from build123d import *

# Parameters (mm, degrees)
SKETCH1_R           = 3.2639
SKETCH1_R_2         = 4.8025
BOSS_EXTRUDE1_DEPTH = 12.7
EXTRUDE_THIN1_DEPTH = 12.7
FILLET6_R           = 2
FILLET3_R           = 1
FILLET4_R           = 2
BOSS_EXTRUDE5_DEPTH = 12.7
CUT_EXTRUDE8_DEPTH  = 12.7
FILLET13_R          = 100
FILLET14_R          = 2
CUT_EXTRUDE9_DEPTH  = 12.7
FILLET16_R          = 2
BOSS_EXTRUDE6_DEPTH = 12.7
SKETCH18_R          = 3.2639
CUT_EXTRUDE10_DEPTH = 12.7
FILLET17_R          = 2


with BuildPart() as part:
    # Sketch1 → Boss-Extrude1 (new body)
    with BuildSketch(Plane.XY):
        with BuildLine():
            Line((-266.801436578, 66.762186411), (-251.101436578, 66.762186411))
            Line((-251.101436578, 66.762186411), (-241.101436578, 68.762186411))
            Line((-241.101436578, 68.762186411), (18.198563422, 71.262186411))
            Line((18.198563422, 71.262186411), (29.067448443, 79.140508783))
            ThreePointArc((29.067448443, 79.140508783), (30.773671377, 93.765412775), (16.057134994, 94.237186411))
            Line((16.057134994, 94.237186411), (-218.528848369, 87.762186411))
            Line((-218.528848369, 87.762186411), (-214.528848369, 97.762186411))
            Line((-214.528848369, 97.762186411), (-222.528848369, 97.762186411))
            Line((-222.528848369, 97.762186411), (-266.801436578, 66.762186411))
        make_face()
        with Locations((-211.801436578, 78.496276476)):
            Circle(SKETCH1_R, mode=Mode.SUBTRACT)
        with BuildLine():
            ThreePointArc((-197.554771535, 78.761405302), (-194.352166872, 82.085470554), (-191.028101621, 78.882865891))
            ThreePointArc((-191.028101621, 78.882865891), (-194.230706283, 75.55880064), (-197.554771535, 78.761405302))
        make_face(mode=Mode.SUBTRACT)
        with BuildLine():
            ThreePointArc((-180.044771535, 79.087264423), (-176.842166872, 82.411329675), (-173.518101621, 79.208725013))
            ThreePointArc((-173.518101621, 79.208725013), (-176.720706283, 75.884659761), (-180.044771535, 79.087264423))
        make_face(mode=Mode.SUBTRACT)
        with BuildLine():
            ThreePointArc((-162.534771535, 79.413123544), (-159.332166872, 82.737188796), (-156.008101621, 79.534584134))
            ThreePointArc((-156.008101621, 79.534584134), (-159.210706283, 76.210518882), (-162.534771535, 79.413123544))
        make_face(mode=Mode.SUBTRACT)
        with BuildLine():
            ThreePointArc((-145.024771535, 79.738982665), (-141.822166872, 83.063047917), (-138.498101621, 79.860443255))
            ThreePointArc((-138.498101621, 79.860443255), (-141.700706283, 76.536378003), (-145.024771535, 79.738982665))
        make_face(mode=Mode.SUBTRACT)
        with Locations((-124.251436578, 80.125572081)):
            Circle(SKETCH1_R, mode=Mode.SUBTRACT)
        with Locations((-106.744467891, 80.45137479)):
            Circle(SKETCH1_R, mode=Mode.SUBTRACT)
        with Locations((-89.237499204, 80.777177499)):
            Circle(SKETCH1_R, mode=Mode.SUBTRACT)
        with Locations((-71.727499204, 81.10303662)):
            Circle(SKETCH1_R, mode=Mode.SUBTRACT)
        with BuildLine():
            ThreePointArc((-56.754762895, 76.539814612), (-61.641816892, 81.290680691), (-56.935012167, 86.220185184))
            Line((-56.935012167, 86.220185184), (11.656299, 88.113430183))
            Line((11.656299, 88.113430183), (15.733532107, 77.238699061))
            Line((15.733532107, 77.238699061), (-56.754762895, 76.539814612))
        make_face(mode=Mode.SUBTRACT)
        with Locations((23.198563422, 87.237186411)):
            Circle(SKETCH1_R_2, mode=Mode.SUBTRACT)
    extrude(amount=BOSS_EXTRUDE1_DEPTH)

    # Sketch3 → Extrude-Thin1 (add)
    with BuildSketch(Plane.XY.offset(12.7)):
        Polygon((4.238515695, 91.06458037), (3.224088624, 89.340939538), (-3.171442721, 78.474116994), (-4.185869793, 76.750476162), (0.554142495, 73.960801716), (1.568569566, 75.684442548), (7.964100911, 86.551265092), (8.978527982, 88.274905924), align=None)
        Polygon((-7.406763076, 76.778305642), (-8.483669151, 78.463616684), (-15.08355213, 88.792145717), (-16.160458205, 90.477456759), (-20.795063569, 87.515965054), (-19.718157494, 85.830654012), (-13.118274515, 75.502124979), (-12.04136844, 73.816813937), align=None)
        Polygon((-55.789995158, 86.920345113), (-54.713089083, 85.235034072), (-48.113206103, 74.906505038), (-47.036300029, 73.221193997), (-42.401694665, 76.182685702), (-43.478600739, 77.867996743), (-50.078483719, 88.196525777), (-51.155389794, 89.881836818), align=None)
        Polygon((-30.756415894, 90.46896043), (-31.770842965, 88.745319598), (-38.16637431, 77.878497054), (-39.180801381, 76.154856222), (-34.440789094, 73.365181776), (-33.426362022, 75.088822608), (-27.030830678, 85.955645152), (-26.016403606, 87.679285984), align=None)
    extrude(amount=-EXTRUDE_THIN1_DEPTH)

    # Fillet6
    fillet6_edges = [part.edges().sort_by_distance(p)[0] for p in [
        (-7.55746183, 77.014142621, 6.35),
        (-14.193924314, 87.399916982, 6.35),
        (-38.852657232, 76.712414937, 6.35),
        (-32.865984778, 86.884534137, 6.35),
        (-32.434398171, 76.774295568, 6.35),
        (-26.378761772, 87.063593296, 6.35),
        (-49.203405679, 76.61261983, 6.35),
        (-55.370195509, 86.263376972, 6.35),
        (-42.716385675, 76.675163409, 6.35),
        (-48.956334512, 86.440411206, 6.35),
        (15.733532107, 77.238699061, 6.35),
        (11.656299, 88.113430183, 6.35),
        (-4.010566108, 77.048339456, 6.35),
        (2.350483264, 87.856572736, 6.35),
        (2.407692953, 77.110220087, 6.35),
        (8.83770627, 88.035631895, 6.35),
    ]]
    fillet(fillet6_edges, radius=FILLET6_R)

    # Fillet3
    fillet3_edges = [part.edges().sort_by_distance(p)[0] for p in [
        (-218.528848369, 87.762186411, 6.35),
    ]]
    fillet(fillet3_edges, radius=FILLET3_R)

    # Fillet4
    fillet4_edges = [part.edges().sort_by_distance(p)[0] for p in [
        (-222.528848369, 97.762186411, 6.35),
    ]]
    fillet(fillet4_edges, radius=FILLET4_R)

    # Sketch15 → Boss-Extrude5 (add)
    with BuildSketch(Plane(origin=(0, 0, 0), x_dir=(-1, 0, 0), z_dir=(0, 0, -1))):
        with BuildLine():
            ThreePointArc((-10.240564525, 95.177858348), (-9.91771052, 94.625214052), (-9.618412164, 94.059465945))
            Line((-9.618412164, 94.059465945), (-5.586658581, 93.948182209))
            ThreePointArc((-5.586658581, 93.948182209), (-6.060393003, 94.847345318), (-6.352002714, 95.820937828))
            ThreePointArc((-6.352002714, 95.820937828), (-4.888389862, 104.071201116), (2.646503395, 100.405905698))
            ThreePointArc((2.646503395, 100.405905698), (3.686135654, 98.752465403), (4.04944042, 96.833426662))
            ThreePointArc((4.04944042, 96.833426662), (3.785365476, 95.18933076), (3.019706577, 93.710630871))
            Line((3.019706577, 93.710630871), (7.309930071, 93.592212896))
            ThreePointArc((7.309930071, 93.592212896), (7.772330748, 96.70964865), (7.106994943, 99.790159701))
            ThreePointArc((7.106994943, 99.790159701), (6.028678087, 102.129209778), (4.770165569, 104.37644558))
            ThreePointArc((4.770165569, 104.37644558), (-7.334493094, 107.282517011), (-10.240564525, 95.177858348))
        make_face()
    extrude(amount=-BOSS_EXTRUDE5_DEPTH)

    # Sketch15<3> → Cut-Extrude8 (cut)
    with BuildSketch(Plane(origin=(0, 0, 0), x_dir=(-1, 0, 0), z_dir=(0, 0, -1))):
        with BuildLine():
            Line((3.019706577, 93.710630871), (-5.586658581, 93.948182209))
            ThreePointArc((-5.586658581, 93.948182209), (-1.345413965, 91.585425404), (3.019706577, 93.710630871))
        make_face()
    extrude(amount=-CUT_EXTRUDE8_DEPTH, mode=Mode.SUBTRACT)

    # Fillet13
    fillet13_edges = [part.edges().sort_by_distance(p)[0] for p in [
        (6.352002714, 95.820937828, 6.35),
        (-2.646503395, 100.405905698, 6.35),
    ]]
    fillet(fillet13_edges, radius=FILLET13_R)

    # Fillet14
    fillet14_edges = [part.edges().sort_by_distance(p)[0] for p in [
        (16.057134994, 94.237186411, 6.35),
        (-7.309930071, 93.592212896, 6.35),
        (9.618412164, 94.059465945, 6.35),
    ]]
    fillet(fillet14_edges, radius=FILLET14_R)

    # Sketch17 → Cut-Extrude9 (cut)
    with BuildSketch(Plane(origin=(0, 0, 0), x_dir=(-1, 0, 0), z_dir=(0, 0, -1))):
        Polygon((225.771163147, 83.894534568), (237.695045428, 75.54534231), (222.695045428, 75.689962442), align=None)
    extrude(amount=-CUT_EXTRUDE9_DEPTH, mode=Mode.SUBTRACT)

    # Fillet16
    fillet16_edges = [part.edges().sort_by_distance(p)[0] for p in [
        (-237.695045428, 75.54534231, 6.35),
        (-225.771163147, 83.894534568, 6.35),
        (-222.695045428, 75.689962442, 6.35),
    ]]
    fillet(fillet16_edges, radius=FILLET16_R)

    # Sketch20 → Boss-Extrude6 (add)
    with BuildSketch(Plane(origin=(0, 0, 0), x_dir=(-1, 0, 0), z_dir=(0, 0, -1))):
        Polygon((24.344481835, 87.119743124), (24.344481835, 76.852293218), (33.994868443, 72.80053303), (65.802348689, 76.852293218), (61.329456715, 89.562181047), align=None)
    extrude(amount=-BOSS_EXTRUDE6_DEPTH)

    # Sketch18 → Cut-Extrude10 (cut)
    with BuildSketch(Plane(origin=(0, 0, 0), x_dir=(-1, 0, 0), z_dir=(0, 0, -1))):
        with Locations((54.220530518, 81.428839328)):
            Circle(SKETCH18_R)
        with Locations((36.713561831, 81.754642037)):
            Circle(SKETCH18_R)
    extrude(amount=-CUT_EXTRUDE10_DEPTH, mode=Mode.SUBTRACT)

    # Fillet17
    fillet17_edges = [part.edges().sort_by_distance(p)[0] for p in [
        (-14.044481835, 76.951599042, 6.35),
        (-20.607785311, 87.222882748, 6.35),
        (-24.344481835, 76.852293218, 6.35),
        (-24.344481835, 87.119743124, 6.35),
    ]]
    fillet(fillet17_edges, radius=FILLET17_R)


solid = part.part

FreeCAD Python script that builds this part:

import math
import FreeCAD as App
import Part
import Sketcher
from FreeCAD import Vector
Q = App.Units.Quantity


def edges_at(feature, points):
    """Names of the edges that pass closest to the given points."""
    edges = feature.Shape.Edges
    near = lambda p: min(range(len(edges)), key=lambda i: edges[i].distToShape(Part.Vertex(*p))[0])
    return sorted({f"Edge{near(p) + 1}" for p in points})

doc = App.newDocument("Part")
body = doc.addObject("PartDesign::Body", "Body")

# Sketch on XY plane
sketch1 = body.newObject("Sketcher::SketchObject", "Sketch")
sketch1.AttachmentSupport = (doc.getObject("XY_Plane"), [""])
sketch1.MapMode = "FlatFace"
sketch1.addGeometry(Part.LineSegment(Vector(-266.8, 66.8, 0), Vector(-251.1, 66.8, 0)), False)
sketch1.addGeometry(Part.LineSegment(Vector(-251.1, 66.8, 0), Vector(-241.1, 68.8, 0)), False)
sketch1.addGeometry(Part.LineSegment(Vector(-241.1, 68.8, 0), Vector(18.2, 71.3, 0)), False)
sketch1.addGeometry(Part.LineSegment(Vector(18.2, 71.3, 0), Vector(29.1, 79.1, 0)), False)
sketch1.addGeometry(Part.ArcOfCircle(Part.Circle(Vector(23.2, 87.2, 0), Vector(0, 0, 1), 10), math.radians(-54), math.radians(136)), False)
sketch1.addGeometry(Part.LineSegment(Vector(16.1, 94.2, 0), Vector(-218.5, 87.8, 0)), False)
sketch1.addGeometry(Part.LineSegment(Vector(-218.5, 87.8, 0), Vector(-214.5, 97.8, 0)), False)
sketch1.addGeometry(Part.LineSegment(Vector(-214.5, 97.8, 0), Vector(-222.5, 97.8, 0)), False)
sketch1.addGeometry(Part.LineSegment(Vector(-222.5, 97.8, 0), Vector(-266.8, 66.8, 0)), False)
sketch1.addGeometry(Part.Circle(Vector(-211.8, 78.5, 0), Vector(0, 0, 1), 3.3), False)
sketch1.addGeometry(Part.Circle(Vector(-194.3, 78.8, 0), Vector(0, 0, 1), 3.3), False)
sketch1.addGeometry(Part.ArcOfCircle(Part.Circle(Vector(-176.8, 79.1, 0), Vector(0, 0, 1), 3.3), math.radians(-179), math.radians(1)), False)
sketch1.addGeometry(Part.ArcOfCircle(Part.Circle(Vector(-176.8, 79.1, 0), Vector(0, 0, 1), 3.3), math.radians(1), math.radians(181)), False)
sketch1.addGeometry(Part.ArcOfCircle(Part.Circle(Vector(-159.3, 79.5, 0), Vector(0, 0, 1), 3.3), math.radians(-179), math.radians(1)), False)
sketch1.addGeometry(Part.ArcOfCircle(Part.Circle(Vector(-159.3, 79.5, 0), Vector(0, 0, 1), 3.3), math.radians(1), math.radians(181)), False)
sketch1.addGeometry(Part.ArcOfCircle(Part.Circle(Vector(-141.8, 79.8, 0), Vector(0, 0, 1), 3.3), math.radians(-179), math.radians(1)), False)
sketch1.addGeometry(Part.ArcOfCircle(Part.Circle(Vector(-141.8, 79.8, 0), Vector(0, 0, 1), 3.3), math.radians(1), math.radians(181)), False)
sketch1.addGeometry(Part.Circle(Vector(-124.3, 80.1, 0), Vector(0, 0, 1), 3.3), False)
sketch1.addGeometry(Part.Circle(Vector(-106.7, 80.5, 0), Vector(0, 0, 1), 3.3), False)
sketch1.addGeometry(Part.Circle(Vector(-89.2, 80.8, 0), Vector(0, 0, 1), 3.3), False)
sketch1.addGeometry(Part.Circle(Vector(-71.7, 81.1, 0), Vector(0, 0, 1), 3.3), False)
sketch1.addGeometry(Part.LineSegment(Vector(15.7, 77.2, 0), Vector(-56.8, 76.5, 0)), False)
sketch1.addGeometry(Part.ArcOfCircle(Part.Circle(Vector(-56.8, 81.4, 0), Vector(0, 0, 1), 4.8), math.radians(92), math.radians(271)), False)
sketch1.addGeometry(Part.LineSegment(Vector(-56.9, 86.2, 0), Vector(11.7, 88.1, 0)), False)
sketch1.addGeometry(Part.LineSegment(Vector(11.7, 88.1, 0), Vector(15.7, 77.2, 0)), False)
sketch1.addGeometry(Part.Circle(Vector(23.2, 87.2, 0), Vector(0, 0, 1), 4.8), False)
sketch1.addConstraint(Sketcher.Constraint("Coincident", 0, 2, 1, 1))
sketch1.addConstraint(Sketcher.Constraint("Coincident", 1, 2, 2, 1))
sketch1.addConstraint(Sketcher.Constraint("Coincident", 2, 2, 3, 1))
sketch1.addConstraint(Sketcher.Constraint("Tangent", 3, 2, 4, 1))
sketch1.addConstraint(Sketcher.Constraint("Coincident", 4, 2, 5, 1))
sketch1.addConstraint(Sketcher.Constraint("Coincident", 5, 2, 6, 1))
sketch1.addConstraint(Sketcher.Constraint("Coincident", 6, 2, 7, 1))
sketch1.addConstraint(Sketcher.Constraint("Coincident", 7, 2, 8, 1))
sketch1.addConstraint(Sketcher.Constraint("Coincident", 8, 2, 0, 1))
sketch1.addConstraint(Sketcher.Constraint("Tangent", 11, 1, 12, 2))
sketch1.addConstraint(Sketcher.Constraint("Coincident", 12, 1, 11, 2))
sketch1.addConstraint(Sketcher.Constraint("Tangent", 13, 1, 14, 2))
sketch1.addConstraint(Sketcher.Constraint("Coincident", 14, 1, 13, 2))
sketch1.addConstraint(Sketcher.Constraint("Tangent", 15, 1, 16, 2))
sketch1.addConstraint(Sketcher.Constraint("Coincident", 16, 1, 15, 2))
sketch1.addConstraint(Sketcher.Constraint("Tangent", 21, 2, 22, 2))
sketch1.addConstraint(Sketcher.Constraint("Tangent", 22, 1, 23, 1))
sketch1.addConstraint(Sketcher.Constraint("Coincident", 23, 2, 24, 1))
sketch1.addConstraint(Sketcher.Constraint("Coincident", 24, 2, 21, 1))
sketch1.addConstraint(Sketcher.Constraint("Horizontal", 0))
sketch1.addConstraint(Sketcher.Constraint("Horizontal", 7))
sketch1.addConstraint(Sketcher.Constraint("Coincident", 25, 3, 4, 3))
sketch1.addConstraint(Sketcher.Constraint("Equal", 9, 10))
sketch1.addConstraint(Sketcher.Constraint("Equal", 10, 11))
sketch1.addConstraint(Sketcher.Constraint("Equal", 12, 13))
sketch1.addConstraint(Sketcher.Constraint("Equal", 14, 15))
sketch1.addConstraint(Sketcher.Constraint("Equal", 16, 17))
sketch1.addConstraint(Sketcher.Constraint("Equal", 17, 18))
sketch1.addConstraint(Sketcher.Constraint("Equal", 18, 19))
sketch1.addConstraint(Sketcher.Constraint("Equal", 19, 20))
sketch1.addConstraint(Sketcher.Constraint("Parallel", 2, 21))
sketch1.addConstraint(Sketcher.Constraint("Parallel", 5, 23))
sketch1.addConstraint(Sketcher.Constraint("Radius", 4, 10.0))
sketch1.addConstraint(Sketcher.Constraint("DistanceX", 7, 2, 7, 1, 8.0))
sketch1.addConstraint(Sketcher.Constraint("Angle", 8, Q("-145 deg")))
sketch1.addConstraint(Sketcher.Constraint("Diameter", 25, 9.605))
sketch1.addConstraint(Sketcher.Constraint("DistanceX", 0, 1, 0, 2, 15.7))
sketch1.addConstraint(Sketcher.Constraint("DistanceX", 9, 3, 4, 3, 235.0))
sketch1.addConstraint(Sketcher.Constraint("DistanceX", 22, 3, 4, 3, 80.0))
sketch1.addConstraint(Sketcher.Constraint("DistanceX", 0, 2, 1, 2, 10.0))
sketch1.addConstraint(Sketcher.Constraint("DistanceY", 0, 2, 1, 2, 2.0))
sketch1.addConstraint(Sketcher.Constraint("DistanceX", 2, 2, 4, 3, 5.0))
sketch1.addConstraint(Sketcher.Constraint("DistanceY", 4, 3, 4, 2, 7.0))
sketch1.addConstraint(Sketcher.Constraint("DistanceY", 1, 2, 5, 2, 19.0))
sketch1.addConstraint(Sketcher.Constraint("DistanceX", 5, 2, 6, 2, 4.0))
sketch1.addConstraint(Sketcher.Constraint("DistanceY", 5, 2, 6, 2, 10.0))
sketch1.addConstraint(Sketcher.Constraint("DistanceX", 8, 2, 9, 3, 55.0))
sketch1.addConstraint(Sketcher.Constraint("Diameter", 9, 6.5278))
sketch1.addConstraint(Sketcher.Constraint("Radius", 22, 4.841219))
sketch1.addConstraint(Sketcher.Constraint("DistanceX", 9, 3, 10, 3, 17.51))
sketch1.addConstraint(Sketcher.Constraint("DistanceX", 10, 3, 11, 3, 17.51))
sketch1.addConstraint(Sketcher.Constraint("DistanceX", 11, 3, 13, 3, 17.51))
sketch1.addConstraint(Sketcher.Constraint("DistanceX", 13, 3, 15, 3, 17.51))
sketch1.addConstraint(Sketcher.Constraint("DistanceX", 15, 3, 17, 3, 17.51))
sketch1.addConstraint(Sketcher.Constraint("DistanceX", 19, 3, 20, 3, 17.51))
sketch1.addConstraint(Sketcher.Constraint("DistanceX", 14, 1, 16, 1, 17.51))
sketch1.addConstraint(Sketcher.Constraint("DistanceY", 2, 2, 4, 3, 15.975))
sketch1.addConstraint(Sketcher.Constraint("DistanceX", 19, 3, -1, 1, 89.237499))
sketch1.addConstraint(Sketcher.Constraint("DistanceX", 12, 1, -1, 1, 173.518102))
sketch1.addConstraint(Sketcher.Constraint("DistanceX", 14, 1, -1, 1, 156.008102))
sketch1.addConstraint(Sketcher.Constraint("DistanceX", -1, 1, 23, 2, 11.656299))
sketch1.addConstraint(Sketcher.Constraint("DistanceY", -1, 1, 24, 2, 77.238699))
sketch1.addConstraint(Sketcher.Constraint("DistanceY", 3, 2, 22, 3, 2.2403))
sketch1.addConstraint(Sketcher.Constraint("DistanceY", 12, 1, 13, 1, 0.204399))
sketch1.addConstraint(Sketcher.Constraint("DistanceY", 14, 1, 15, 1, 0.204399))
sketch1.addConstraint(Sketcher.Constraint("Distance", 24, 11.61394))
sketch1.addConstraint(Sketcher.Constraint("DistanceY", -1, 1, 22, 3, 81.380809))
sketch1.addConstraint(Sketcher.Constraint("DistanceX", -1, 1, 3, 2, 29.067448))
sketch1.addConstraint(Sketcher.Constraint("DistanceX", 11, 1, -1, 1, 180.044772))
sketch1.addConstraint(Sketcher.Constraint("DistanceX", 13, 1, -1, 1, 162.534772))
sketch1.addConstraint(Sketcher.Constraint("DistanceX", 15, 1, -1, 1, 145.024772))
sketch1.addConstraint(Sketcher.Constraint("DistanceY", 9, 3, 4, 3, 8.74091))
sketch1.addConstraint(Sketcher.Constraint("DistanceY", 9, 3, 10, 3, 0.325859))
sketch1.addConstraint(Sketcher.Constraint("DistanceY", 10, 3, 11, 3, 0.325859))
sketch1.addConstraint(Sketcher.Constraint("DistanceY", 15, 3, 17, 3, 0.325859))
sketch1.addConstraint(Sketcher.Constraint("DistanceX", 17, 3, 18, 3, 17.506969))
sketch1.addConstraint(Sketcher.Constraint("DistanceY", 15, 3, 18, 3, 0.651662))
sketch1.addConstraint(Sketcher.Constraint("DistanceY", 19, 3, 20, 3, 0.325859))
sketch1.addConstraint(Sketcher.Constraint("DistanceY", 18, 3, 20, 3, 0.651662))
pad1 = body.newObject("PartDesign::Pad", "Pad")
pad1.Profile = sketch1
pad1.Length = 12.7

# Sketch on XY plane
sketch2 = body.newObject("Sketcher::SketchObject", "Sketch001")
sketch2.AttachmentSupport = (doc.getObject("XY_Plane"), [""])
sketch2.MapMode = "FlatFace"
sketch2.AttachmentOffset = App.Placement(Vector(0, 0, 12.7), App.Rotation())
sketch2.addGeometry(Part.LineSegment(Vector(4.2, 91.1, 0), Vector(3.2, 89.3, 0)), False)
sketch2.addGeometry(Part.LineSegment(Vector(3.2, 89.3, 0), Vector(-3.2, 78.5, 0)), False)
sketch2.addGeometry(Part.LineSegment(Vector(-3.2, 78.5, 0), Vector(-4.2, 76.8, 0)), False)
sketch2.addGeometry(Part.LineSegment(Vector(-4.2, 76.8, 0), Vector(0.6, 74, 0)), False)
sketch2.addGeometry(Part.LineSegment(Vector(0.6, 74, 0), Vector(1.6, 75.7, 0)), False)
sketch2.addGeometry(Part.LineSegment(Vector(1.6, 75.7, 0), Vector(8, 86.6, 0)), False)
sketch2.addGeometry(Part.LineSegment(Vector(8, 86.6, 0), Vector(9, 88.3, 0)), False)
sketch2.addGeometry(Part.LineSegment(Vector(9, 88.3, 0), Vector(4.2, 91.1, 0)), False)
sketch2.addGeometry(Part.LineSegment(Vector(-7.4, 76.8, 0), Vector(-8.5, 78.5, 0)), False)
sketch2.addGeometry(Part.LineSegment(Vector(-8.5, 78.5, 0), Vector(-15.1, 88.8, 0)), False)
sketch2.addGeometry(Part.LineSegment(Vector(-15.1, 88.8, 0), Vector(-16.2, 90.5, 0)), False)
sketch2.addGeometry(Part.LineSegment(Vector(-16.2, 90.5, 0), Vector(-20.8, 87.5, 0)), False)
sketch2.addGeometry(Part.LineSegment(Vector(-20.8, 87.5, 0), Vector(-19.7, 85.8, 0)), False)
sketch2.addGeometry(Part.LineSegment(Vector(-19.7, 85.8, 0), Vector(-13.1, 75.5, 0)), False)
sketch2.addGeometry(Part.LineSegment(Vector(-13.1, 75.5, 0), Vector(-12, 73.8, 0)), False)
sketch2.addGeometry(Part.LineSegment(Vector(-12, 73.8, 0), Vector(-7.4, 76.8, 0)), False)
sketch2.addGeometry(Part.LineSegment(Vector(-55.8, 86.9, 0), Vector(-54.7, 85.2, 0)), False)
sketch2.addGeometry(Part.LineSegment(Vector(-54.7, 85.2, 0), Vector(-48.1, 74.9, 0)), False)
sketch2.addGeometry(Part.LineSegment(Vector(-48.1, 74.9, 0), Vector(-47, 73.2, 0)), False)
sketch2.addGeometry(Part.LineSegment(Vector(-47, 73.2, 0), Vector(-42.4, 76.2, 0)), False)
sketch2.addGeometry(Part.LineSegment(Vector(-42.4, 76.2, 0), Vector(-43.5, 77.9, 0)), False)
sketch2.addGeometry(Part.LineSegment(Vector(-43.5, 77.9, 0), Vector(-50.1, 88.2, 0)), False)
sketch2.addGeometry(Part.LineSegment(Vector(-50.1, 88.2, 0), Vector(-51.2, 89.9, 0)), False)
sketch2.addGeometry(Part.LineSegment(Vector(-51.2, 89.9, 0), Vector(-55.8, 86.9, 0)), False)
sketch2.addGeometry(Part.LineSegment(Vector(-30.8, 90.5, 0), Vector(-31.8, 88.7, 0)), False)
sketch2.addGeometry(Part.LineSegment(Vector(-31.8, 88.7, 0), Vector(-38.2, 77.9, 0)), False)
sketch2.addGeometry(Part.LineSegment(Vector(-38.2, 77.9, 0), Vector(-39.2, 76.2, 0)), False)
sketch2.addGeometry(Part.LineSegment(Vector(-39.2, 76.2, 0), Vector(-34.4, 73.4, 0)), False)
sketch2.addGeometry(Part.LineSegment(Vector(-34.4, 73.4, 0), Vector(-33.4, 75.1, 0)), False)
sketch2.addGeometry(Part.LineSegment(Vector(-33.4, 75.1, 0), Vector(-27, 86, 0)), False)
sketch2.addGeometry(Part.LineSegment(Vector(-27, 86, 0), Vector(-26, 87.7, 0)), False)
sketch2.addGeometry(Part.LineSegment(Vector(-26, 87.7, 0), Vector(-30.8, 90.5, 0)), False)
sketch2.addConstraint(Sketcher.Constraint("Coincident", 0, 2, 1, 1))
sketch2.addConstraint(Sketcher.Constraint("Coincident", 1, 2, 2, 1))
sketch2.addConstraint(Sketcher.Constraint("Coincident", 2, 2, 3, 1))
sketch2.addConstraint(Sketcher.Constraint("Coincident", 3, 2, 4, 1))
sketch2.addConstraint(Sketcher.Constraint("Coincident", 4, 2, 5, 1))
sketch2.addConstraint(Sketcher.Constraint("Coincident", 5, 2, 6, 1))
sketch2.addConstraint(Sketcher.Constraint("Coincident", 6, 2, 7, 1))
sketch2.addConstraint(Sketcher.Constraint("Coincident", 7, 2, 0, 1))
sketch2.addConstraint(Sketcher.Constraint("Coincident", 8, 2, 9, 1))
sketch2.addConstraint(Sketcher.Constraint("Coincident", 9, 2, 10, 1))
sketch2.addConstraint(Sketcher.Constraint("Coincident", 10, 2, 11, 1))
sketch2.addConstraint(Sketcher.Constraint("Coincident", 11, 2, 12, 1))
sketch2.addConstraint(Sketcher.Constraint("Coincident", 12, 2, 13, 1))
sketch2.addConstraint(Sketcher.Constraint("Coincident", 13, 2, 14, 1))
sketch2.addConstraint(Sketcher.Constraint("Coincident", 14, 2, 15, 1))
sketch2.addConstraint(Sketcher.Constraint("Coincident", 15, 2, 8, 1))
sketch2.addConstraint(Sketcher.Constraint("Coincident", 16, 2, 17, 1))
sketch2.addConstraint(Sketcher.Constraint("Coincident", 17, 2, 18, 1))
sketch2.addConstraint(Sketcher.Constraint("Coincident", 18, 2, 19, 1))
sketch2.addConstraint(Sketcher.Constraint("Coincident", 19, 2, 20, 1))
sketch2.addConstraint(Sketcher.Constraint("Coincident", 20, 2, 21, 1))
sketch2.addConstraint(Sketcher.Constraint("Coincident", 21, 2, 22, 1))
sketch2.addConstraint(Sketcher.Constraint("Coincident", 22, 2, 23, 1))
sketch2.addConstraint(Sketcher.Constraint("Coincident", 23, 2, 16, 1))
sketch2.addConstraint(Sketcher.Constraint("Coincident", 24, 2, 25, 1))
sketch2.addConstraint(Sketcher.Constraint("Coincident", 25, 2, 26, 1))
sketch2.addConstraint(Sketcher.Constraint("Coincident", 26, 2, 27, 1))
sketch2.addConstraint(Sketcher.Constraint("Coincident", 27, 2, 28, 1))
sketch2.addConstraint(Sketcher.Constraint("Coincident", 28, 2, 29, 1))
sketch2.addConstraint(Sketcher.Constraint("Coincident", 29, 2, 30, 1))
sketch2.addConstraint(Sketcher.Constraint("Coincident", 30, 2, 31, 1))
sketch2.addConstraint(Sketcher.Constraint("Coincident", 31, 2, 24, 1))
sketch2.addConstraint(Sketcher.Constraint("Parallel", 0, 1))
sketch2.addConstraint(Sketcher.Constraint("Parallel", 1, 2))
sketch2.addConstraint(Sketcher.Constraint("Perpendicular", 2, 3))
sketch2.addConstraint(Sketcher.Constraint("Perpendicular", 3, 4))
sketch2.addConstraint(Sketcher.Constraint("Parallel", 4, 5))
sketch2.addConstraint(Sketcher.Constraint("Parallel", 5, 6))
sketch2.addConstraint(Sketcher.Constraint("Perpendicular", 6, 7))
sketch2.addConstraint(Sketcher.Constraint("Parallel", 8, 9))
sketch2.addConstraint(Sketcher.Constraint("Parallel", 9, 10))
sketch2.addConstraint(Sketcher.Constraint("Perpendicular", 10, 11))
sketch2.addConstraint(Sketcher.Constraint("Perpendicular", 11, 12))
sketch2.addConstraint(Sketcher.Constraint("Parallel", 12, 13))
sketch2.addConstraint(Sketcher.Constraint("Parallel", 13, 14))
sketch2.addConstraint(Sketcher.Constraint("Perpendicular", 14, 15))
sketch2.addConstraint(Sketcher.Constraint("Perpendicular", 15, 16))
sketch2.addConstraint(Sketcher.Constraint("Parallel", 16, 17))
sketch2.addConstraint(Sketcher.Constraint("Parallel", 17, 18))
sketch2.addConstraint(Sketcher.Constraint("Perpendicular", 18, 19))
sketch2.addConstraint(Sketcher.Constraint("Perpendicular", 19, 20))
sketch2.addConstraint(Sketcher.Constraint("Parallel", 20, 21))
sketch2.addConstraint(Sketcher.Constraint("Parallel", 21, 22))
sketch2.addConstraint(Sketcher.Constraint("Perpendicular", 22, 23))
sketch2.addConstraint(Sketcher.Constraint("Perpendicular", 7, 24))
sketch2.addConstraint(Sketcher.Constraint("Parallel", 24, 25))
sketch2.addConstraint(Sketcher.Constraint("Parallel", 25, 26))
sketch2.addConstraint(Sketcher.Constraint("Perpendicular", 26, 27))
sketch2.addConstraint(Sketcher.Constraint("Perpendicular", 27, 28))
sketch2.addConstraint(Sketcher.Constraint("Parallel", 28, 29))
sketch2.addConstraint(Sketcher.Constraint("Parallel", 29, 30))
sketch2.addConstraint(Sketcher.Constraint("Perpendicular", 30, 31))
sketch2.addConstraint(Sketcher.Constraint("Equal", 0, 2))
sketch2.addConstraint(Sketcher.Constraint("Equal", 2, 4))
sketch2.addConstraint(Sketcher.Constraint("Equal", 1, 5))
sketch2.addConstraint(Sketcher.Constraint("Equal", 6, 8))
sketch2.addConstraint(Sketcher.Constraint("Equal", 8, 10))
sketch2.addConstraint(Sketcher.Constraint("Equal", 7, 11))
sketch2.addConstraint(Sketcher.Constraint("Equal", 10, 12))
sketch2.addConstraint(Sketcher.Constraint("Equal", 9, 13))
sketch2.addConstraint(Sketcher.Constraint("Equal", 14, 16))
sketch2.addConstraint(Sketcher.Constraint("Equal", 13, 17))
sketch2.addConstraint(Sketcher.Constraint("Equal", 16, 18))
sketch2.addConstraint(Sketcher.Constraint("Equal", 15, 19))
sketch2.addConstraint(Sketcher.Constraint("Equal", 18, 20))
sketch2.addConstraint(Sketcher.Constraint("Equal", 17, 21))
sketch2.addConstraint(Sketcher.Constraint("Equal", 22, 24))
sketch2.addConstraint(Sketcher.Constraint("Equal", 5, 25))
sketch2.addConstraint(Sketcher.Constraint("Equal", 24, 26))
sketch2.addConstraint(Sketcher.Constraint("Equal", 23, 27))
sketch2.addConstraint(Sketcher.Constraint("Equal", 26, 28))
sketch2.addConstraint(Sketcher.Constraint("Equal", 25, 29))
sketch2.addConstraint(Sketcher.Constraint("Distance", 0, 2.0))
sketch2.addConstraint(Sketcher.Constraint("Distance", 3, 5.5))
sketch2.addConstraint(Sketcher.Constraint("DistanceY", -1, 1, 3, 2, 73.960802))
sketch2.addConstraint(Sketcher.Constraint("DistanceX", -1, 1, 5, 2, 7.964101))
sketch2.addConstraint(Sketcher.Constraint("DistanceX", 18, 2, -1, 1, 47.0363))
sketch2.addConstraint(Sketcher.Constraint("DistanceX", 20, 2, -1, 1, 43.478601))
sketch2.addConstraint(Sketcher.Constraint("DistanceX", 26, 2, -1, 1, 39.180801))
sketch2.addConstraint(Sketcher.Constraint("DistanceX", 8, 2, 2, 2, 4.297799))
sketch2.addConstraint(Sketcher.Constraint("DistanceY", 8, 2, 1, 2, 0.0105))
sketch2.addConstraint(Sketcher.Constraint("DistanceY", 20, 2, 25, 2, 0.0105))
sketch2.addConstraint(Sketcher.Constraint("DistanceY", 29, 2, 9, 2, 2.836501))
sketch2.addConstraint(Sketcher.Constraint("Distance", 1, 12.60915))
sketch2.addConstraint(Sketcher.Constraint("Distance", 9, 12.257119))
sketch2.addConstraint(Sketcher.Constraint("DistanceX", -1, 1, 0, 2, 3.224089))
pad2 = body.newObject("PartDesign::Pad", "Pad001")
pad2.Profile = sketch2
pad2.Length = 12.7
pad2.Reversed = True
doc.recompute()

fillet = body.newObject("PartDesign::Fillet", "Fillet")
fillet.Base = (pad2, edges_at(pad2, [
    (-7.557, 77.014, 6.35),
    (-14.194, 87.4, 6.35),
    (-38.853, 76.712, 6.35),
    (-32.866, 86.885, 6.35),
    (-32.434, 76.774, 6.35),
    (-26.379, 87.064, 6.35),
    (-49.203, 76.613, 6.35),
    (-55.37, 86.263, 6.35),
    (-42.716, 76.675, 6.35),
    (-48.956, 86.44, 6.35),
    (15.734, 77.239, 6.35),
    (11.656, 88.113, 6.35),
    (-4.011, 77.048, 6.35),
    (2.35, 87.857, 6.35),
    (2.408, 77.11, 6.35),
    (8.838, 88.036, 6.35),
]))
fillet.Radius = 2
doc.recompute()

fillet2 = body.newObject("PartDesign::Fillet", "Fillet001")
fillet2.Base = (fillet, edges_at(fillet, [(-218.529, 87.762, 6.35)]))
fillet2.Radius = 1
doc.recompute()

fillet3 = body.newObject("PartDesign::Fillet", "Fillet002")
fillet3.Base = (fillet2, edges_at(fillet2, [(-222.529, 97.762, 6.35)]))
fillet3.Radius = 2

# Sketch on XY plane
sketch3 = body.newObject("Sketcher::SketchObject", "Sketch002")
sketch3.AttachmentSupport = (doc.getObject("XY_Plane"), [""])
sketch3.MapMode = "FlatFace"
sketch3.addGeometry(Part.ArcOfCircle(Part.Circle(Vector(23.2, 87.2, 0), Vector(0, 0, 1), 15.2), math.radians(148.5), math.radians(153.33)), False)
sketch3.addGeometry(Part.LineSegment(Vector(9.6, 94.1, 0), Vector(5.6, 93.9, 0)), False)
sketch3.addGeometry(Part.ArcOfCircle(Part.Circle(Vector(1.2, 96.8, 0), Vector(0, 0, 1), 5.2), math.radians(-33), math.radians(-11)), False)
sketch3.addGeometry(Part.ArcOfCircle(Part.Circle(Vector(2.5, 99.4, 0), Vector(0, 0, 1), 5.2), math.radians(-43), math.radians(169)), False)
sketch3.addGeometry(Part.ArcOfCircle(Part.Circle(Vector(1.2, 96.8, 0), Vector(0, 0, 1), 5.2), math.radians(137), math.radians(180)), False)
sketch3.addGeometry(Part.ArcOfCircle(Part.Circle(Vector(1.2, 96.8, 0), Vector(0, 0, 1), 5.2), math.radians(180), math.radians(216)), False)
sketch3.addGeometry(Part.LineSegment(Vector(-3, 93.7, 0), Vector(-7.3, 93.6, 0)), False)
sketch3.addGeometry(Part.ArcOfCircle(Part.Circle(Vector(1, 96.4, 0), Vector(0, 0, 1), 8.8), math.radians(157), math.radians(199)), False)
sketch3.addGeometry(Part.ArcOfCircle(Part.Circle(Vector(23.2, 87.2, 0), Vector(0, 0, 1), 32.8), math.radians(148.5), math.radians(157.5)), False)
sketch3.addGeometry(Part.ArcOfCircle(Part.Circle(Vector(2.7, 99.8, 0), Vector(0, 0, 1), 8.8), math.radians(-31), math.radians(149)), False)
sketch3.addConstraint(Sketcher.Constraint("Coincident", 0, 2, 1, 1))
sketch3.addConstraint(Sketcher.Constraint("Coincident", 1, 2, 2, 1))
sketch3.addConstraint(Sketcher.Constraint("Coincident", 2, 2, 3, 1))
sketch3.addConstraint(Sketcher.Constraint("Coincident", 3, 2, 4, 1))
sketch3.addConstraint(Sketcher.Constraint("Tangent", 4, 2, 5, 1))
sketch3.addConstraint(Sketcher.Constraint("Coincident", 5, 2, 6, 1))
sketch3.addConstraint(Sketcher.Constraint("Coincident", 6, 2, 7, 2))
sketch3.addConstraint(Sketcher.Constraint("Tangent", 7, 1, 8, 2))
sketch3.addConstraint(Sketcher.Constraint("Tangent", 8, 1, 9, 2))
sketch3.addConstraint(Sketcher.Constraint("Tangent", 9, 1, 0, 1))
sketch3.addConstraint(Sketcher.Constraint("Coincident", 4, 3, 2, 3))
sketch3.addConstraint(Sketcher.Constraint("Coincident", 8, 3, 0, 3))
sketch3.addConstraint(Sketcher.Constraint("Equal", 2, 3))
sketch3.addConstraint(Sketcher.Constraint("Equal", 3, 4))
sketch3.addConstraint(Sketcher.Constraint("Equal", 4, 5))
sketch3.addConstraint(Sketcher.Constraint("Equal", 7, 9))
sketch3.addConstraint(Sketcher.Constraint("Parallel", 1, 6))
sketch3.addConstraint(Sketcher.Constraint("Horizontal", 5, 3, 4, 2))
sketch3.addConstraint(Sketcher.Constraint("Radius", 2, 5.25))
sketch3.addConstraint(Sketcher.Constraint("Radius", 0, 15.1975))
sketch3.addConstraint(Sketcher.Constraint("Radius", 7, 8.8025))
sketch3.addConstraint(Sketcher.Constraint("DistanceX", -1, 1, 9, 3, 2.735199))
sketch3.addConstraint(Sketcher.Constraint("DistanceX", 2, 3, 1, 2, 4.386099))
sketch3.addConstraint(Sketcher.Constraint("Distance", 1, 4.033289))
sketch3.addConstraint(Sketcher.Constraint("DistanceX", -1, 1, 2, 3, 1.20056))
sketch3.addConstraint(Sketcher.Constraint("DistanceX", -1, 1, 3, 3, 2.50494))
sketch3.addConstraint(Sketcher.Constraint("DistanceY", -1, 1, 7, 3, 96.421589))
sketch3.addConstraint(Sketcher.Constraint("DistanceY", -1, 1, 9, 3, 99.777152))
sketch3.addConstraint(Sketcher.Constraint("DistanceY", -1, 1, 5, 2, 93.710631))
sketch3.addConstraint(Sketcher.Constraint("DistanceX", 6, 2, -1, 1, 7.30993))
sketch3.addConstraint(Sketcher.Constraint("DistanceY", -1, 1, 7, 1, 99.79016))
sketch3.addConstraint(Sketcher.Constraint("DistanceY", 2, 3, 3, 3, 2.55999))
pad3 = body.newObject("PartDesign::Pad", "Pad002")
pad3.Profile = sketch3
pad3.Length = 12.7

# Sketch on XY plane
sketch4 = body.newObject("Sketcher::SketchObject", "Sketch003")
sketch4.AttachmentSupport = (doc.getObject("XY_Plane"), [""])
sketch4.MapMode = "FlatFace"
sketch4.addGeometry(Part.LineSegment(Vector(-3, 94, 0), Vector(6, 94, 0)), False)
sketch4.addGeometry(Part.ArcOfCircle(Part.Circle(Vector(1, 97, 0), Vector(0, 0, 1), 5), math.radians(-144), math.radians(-33)), False)
sketch4.addConstraint(Sketcher.Constraint("Coincident", 0, 1, 1, 1))
sketch4.addConstraint(Sketcher.Constraint("Coincident", 1, 2, 0, 2))
sketch4.addConstraint(Sketcher.Constraint("Radius", 1, 5.25))
sketch4.addConstraint(Sketcher.Constraint("DistanceX", 1, 3, 1, 2, 4.386099))
sketch4.addConstraint(Sketcher.Constraint("DistanceX", -1, 1, 1, 3, 1.20056))
sketch4.addConstraint(Sketcher.Constraint("DistanceY", -1, 1, 0, 1, 93.710631))
sketch4.addConstraint(Sketcher.Constraint("DistanceY", 0, 1, 1, 2, 0.237551))
pocket1 = body.newObject("PartDesign::Pocket", "Pocket")
pocket1.Profile = sketch4
pocket1.Length = 12.7
pocket1.Reversed = True
doc.recompute()

fillet4 = body.newObject("PartDesign::Fillet", "Fillet003")
fillet4.Base = (pocket1, edges_at(pocket1, [(6.352, 95.821, 6.35), (-2.647, 100.406, 6.35)]))
fillet4.Radius = 100
doc.recompute()

fillet5 = body.newObject("PartDesign::Fillet", "Fillet004")
fillet5.Base = (fillet4, edges_at(fillet4, [(16.057, 94.237, 6.35), (-7.31, 93.592, 6.35), (9.618, 94.059, 6.35)]))
fillet5.Radius = 2

# Sketch on XY plane
sketch5 = body.newObject("Sketcher::SketchObject", "Sketch004")
sketch5.AttachmentSupport = (doc.getObject("XY_Plane"), [""])
sketch5.MapMode = "FlatFace"
sketch5.addGeometry(Part.LineSegment(Vector(-238, 76, 0), Vector(-226, 84, 0)), False)
sketch5.addGeometry(Part.LineSegment(Vector(-226, 84, 0), Vector(-223, 76, 0)), False)
sketch5.addGeometry(Part.LineSegment(Vector(-223, 76, 0), Vector(-238, 76, 0)), False)
sketch5.addConstraint(Sketcher.Constraint("Coincident", 0, 2, 1, 1))
sketch5.addConstraint(Sketcher.Constraint("Coincident", 1, 2, 2, 1))
sketch5.addConstraint(Sketcher.Constraint("Coincident", 2, 2, 0, 1))
sketch5.addConstraint(Sketcher.Constraint("Angle", 0, Q("35 deg")))
sketch5.addConstraint(Sketcher.Constraint("DistanceX", 2, 2, 1, 2, 15.0))
sketch5.addConstraint(Sketcher.Constraint("DistanceY", 2, 2, 1, 2, 0.14462))
sketch5.addConstraint(Sketcher.Constraint("Distance", 0, 14.556372))
sketch5.addConstraint(Sketcher.Constraint("DistanceX", 0, 2, -1, 1, 225.771163))
sketch5.addConstraint(Sketcher.Constraint("DistanceY", -1, 1, 0, 2, 83.894535))
pocket2 = body.newObject("PartDesign::Pocket", "Pocket001")
pocket2.Profile = sketch5
pocket2.Length = 12.7
pocket2.Reversed = True
doc.recompute()

fillet6 = body.newObject("PartDesign::Fillet", "Fillet005")
fillet6.Base = (pocket2, edges_at(pocket2, [(-237.695, 75.545, 6.35), (-225.771, 83.895, 6.35), (-222.695, 75.69, 6.35)]))
fillet6.Radius = 2

# Sketch on XY plane
sketch6 = body.newObject("Sketcher::SketchObject", "Sketch005")
sketch6.AttachmentSupport = (doc.getObject("XY_Plane"), [""])
sketch6.MapMode = "FlatFace"
sketch6.addGeometry(Part.LineSegment(Vector(-24, 87, 0), Vector(-24, 77, 0)), False)
sketch6.addGeometry(Part.LineSegment(Vector(-24, 77, 0), Vector(-34, 73, 0)), False)
sketch6.addGeometry(Part.LineSegment(Vector(-34, 73, 0), Vector(-66, 77, 0)), False)
sketch6.addGeometry(Part.LineSegment(Vector(-66, 77, 0), Vector(-61, 90, 0)), False)
sketch6.addGeometry(Part.LineSegment(Vector(-61, 90, 0), Vector(-24, 87, 0)), False)
sketch6.addConstraint(Sketcher.Constraint("Coincident", 0, 2, 1, 1))
sketch6.addConstraint(Sketcher.Constraint("Coincident", 1, 2, 2, 1))
sketch6.addConstraint(Sketcher.Constraint("Coincident", 2, 2, 3, 1))
sketch6.addConstraint(Sketcher.Constraint("Coincident", 3, 2, 4, 1))
sketch6.addConstraint(Sketcher.Constraint("Coincident", 4, 2, 0, 1))
sketch6.addConstraint(Sketcher.Constraint("Vertical", 0))
sketch6.addConstraint(Sketcher.Constraint("Horizontal", 0, 2, 2, 2))
sketch6.addConstraint(Sketcher.Constraint("DistanceY", 0, 2, 0, 1, 10.26745))
sketch6.addConstraint(Sketcher.Constraint("DistanceX", 0, 2, -1, 1, 24.344482))
sketch6.addConstraint(Sketcher.Constraint("DistanceX", 1, 2, -1, 1, 33.994868))
sketch6.addConstraint(Sketcher.Constraint("DistanceX", 2, 2, -1, 1, 65.802349))
sketch6.addConstraint(Sketcher.Constraint("DistanceY", -1, 1, 3, 2, 89.562181))
sketch6.addConstraint(Sketcher.Constraint("DistanceY", 1, 2, 0, 2, 4.05176))
sketch6.addConstraint(Sketcher.Constraint("DistanceX", 2, 2, 3, 2, 4.472892))
sketch6.addConstraint(Sketcher.Constraint("DistanceY", 1, 2, 3, 2, 16.761648))
pad4 = body.newObject("PartDesign::Pad", "Pad003")
pad4.Profile = sketch6
pad4.Length = 12.7

# Sketch on XY plane
sketch7 = body.newObject("Sketcher::SketchObject", "Sketch006")
sketch7.AttachmentSupport = (doc.getObject("XY_Plane"), [""])
sketch7.MapMode = "FlatFace"
sketch7.addGeometry(Part.Circle(Vector(-54.2, 81.4, 0), Vector(0, 0, 1), 3.3), False)
sketch7.addGeometry(Part.Circle(Vector(-36.7, 81.8, 0), Vector(0, 0, 1), 3.3), False)
sketch7.addConstraint(Sketcher.Constraint("Equal", 0, 1))
sketch7.addConstraint(Sketcher.Constraint("Diameter", 0, 6.5278))
sketch7.addConstraint(Sketcher.Constraint("DistanceX", 0, 3, -1, 1, 54.220531))
sketch7.addConstraint(Sketcher.Constraint("DistanceY", -1, 1, 0, 3, 81.428839))
sketch7.addConstraint(Sketcher.Constraint("DistanceX", 1, 3, -1, 1, 36.713562))
sketch7.addConstraint(Sketcher.Constraint("DistanceY", -1, 1, 1, 3, 81.754642))
pocket3 = body.newObject("PartDesign::Pocket", "Pocket002")
pocket3.Profile = sketch7
pocket3.Length = 12.7
pocket3.Reversed = True
doc.recompute()

fillet7 = body.newObject("PartDesign::Fillet", "Fillet006")
fillet7.Base = (pocket3, edges_at(pocket3, [
    (-14.044, 76.952, 6.35),
    (-20.608, 87.223, 6.35),
    (-24.344, 76.852, 6.35),
    (-24.344, 87.12, 6.35),
]))
fillet7.Radius = 2

doc.recompute()
